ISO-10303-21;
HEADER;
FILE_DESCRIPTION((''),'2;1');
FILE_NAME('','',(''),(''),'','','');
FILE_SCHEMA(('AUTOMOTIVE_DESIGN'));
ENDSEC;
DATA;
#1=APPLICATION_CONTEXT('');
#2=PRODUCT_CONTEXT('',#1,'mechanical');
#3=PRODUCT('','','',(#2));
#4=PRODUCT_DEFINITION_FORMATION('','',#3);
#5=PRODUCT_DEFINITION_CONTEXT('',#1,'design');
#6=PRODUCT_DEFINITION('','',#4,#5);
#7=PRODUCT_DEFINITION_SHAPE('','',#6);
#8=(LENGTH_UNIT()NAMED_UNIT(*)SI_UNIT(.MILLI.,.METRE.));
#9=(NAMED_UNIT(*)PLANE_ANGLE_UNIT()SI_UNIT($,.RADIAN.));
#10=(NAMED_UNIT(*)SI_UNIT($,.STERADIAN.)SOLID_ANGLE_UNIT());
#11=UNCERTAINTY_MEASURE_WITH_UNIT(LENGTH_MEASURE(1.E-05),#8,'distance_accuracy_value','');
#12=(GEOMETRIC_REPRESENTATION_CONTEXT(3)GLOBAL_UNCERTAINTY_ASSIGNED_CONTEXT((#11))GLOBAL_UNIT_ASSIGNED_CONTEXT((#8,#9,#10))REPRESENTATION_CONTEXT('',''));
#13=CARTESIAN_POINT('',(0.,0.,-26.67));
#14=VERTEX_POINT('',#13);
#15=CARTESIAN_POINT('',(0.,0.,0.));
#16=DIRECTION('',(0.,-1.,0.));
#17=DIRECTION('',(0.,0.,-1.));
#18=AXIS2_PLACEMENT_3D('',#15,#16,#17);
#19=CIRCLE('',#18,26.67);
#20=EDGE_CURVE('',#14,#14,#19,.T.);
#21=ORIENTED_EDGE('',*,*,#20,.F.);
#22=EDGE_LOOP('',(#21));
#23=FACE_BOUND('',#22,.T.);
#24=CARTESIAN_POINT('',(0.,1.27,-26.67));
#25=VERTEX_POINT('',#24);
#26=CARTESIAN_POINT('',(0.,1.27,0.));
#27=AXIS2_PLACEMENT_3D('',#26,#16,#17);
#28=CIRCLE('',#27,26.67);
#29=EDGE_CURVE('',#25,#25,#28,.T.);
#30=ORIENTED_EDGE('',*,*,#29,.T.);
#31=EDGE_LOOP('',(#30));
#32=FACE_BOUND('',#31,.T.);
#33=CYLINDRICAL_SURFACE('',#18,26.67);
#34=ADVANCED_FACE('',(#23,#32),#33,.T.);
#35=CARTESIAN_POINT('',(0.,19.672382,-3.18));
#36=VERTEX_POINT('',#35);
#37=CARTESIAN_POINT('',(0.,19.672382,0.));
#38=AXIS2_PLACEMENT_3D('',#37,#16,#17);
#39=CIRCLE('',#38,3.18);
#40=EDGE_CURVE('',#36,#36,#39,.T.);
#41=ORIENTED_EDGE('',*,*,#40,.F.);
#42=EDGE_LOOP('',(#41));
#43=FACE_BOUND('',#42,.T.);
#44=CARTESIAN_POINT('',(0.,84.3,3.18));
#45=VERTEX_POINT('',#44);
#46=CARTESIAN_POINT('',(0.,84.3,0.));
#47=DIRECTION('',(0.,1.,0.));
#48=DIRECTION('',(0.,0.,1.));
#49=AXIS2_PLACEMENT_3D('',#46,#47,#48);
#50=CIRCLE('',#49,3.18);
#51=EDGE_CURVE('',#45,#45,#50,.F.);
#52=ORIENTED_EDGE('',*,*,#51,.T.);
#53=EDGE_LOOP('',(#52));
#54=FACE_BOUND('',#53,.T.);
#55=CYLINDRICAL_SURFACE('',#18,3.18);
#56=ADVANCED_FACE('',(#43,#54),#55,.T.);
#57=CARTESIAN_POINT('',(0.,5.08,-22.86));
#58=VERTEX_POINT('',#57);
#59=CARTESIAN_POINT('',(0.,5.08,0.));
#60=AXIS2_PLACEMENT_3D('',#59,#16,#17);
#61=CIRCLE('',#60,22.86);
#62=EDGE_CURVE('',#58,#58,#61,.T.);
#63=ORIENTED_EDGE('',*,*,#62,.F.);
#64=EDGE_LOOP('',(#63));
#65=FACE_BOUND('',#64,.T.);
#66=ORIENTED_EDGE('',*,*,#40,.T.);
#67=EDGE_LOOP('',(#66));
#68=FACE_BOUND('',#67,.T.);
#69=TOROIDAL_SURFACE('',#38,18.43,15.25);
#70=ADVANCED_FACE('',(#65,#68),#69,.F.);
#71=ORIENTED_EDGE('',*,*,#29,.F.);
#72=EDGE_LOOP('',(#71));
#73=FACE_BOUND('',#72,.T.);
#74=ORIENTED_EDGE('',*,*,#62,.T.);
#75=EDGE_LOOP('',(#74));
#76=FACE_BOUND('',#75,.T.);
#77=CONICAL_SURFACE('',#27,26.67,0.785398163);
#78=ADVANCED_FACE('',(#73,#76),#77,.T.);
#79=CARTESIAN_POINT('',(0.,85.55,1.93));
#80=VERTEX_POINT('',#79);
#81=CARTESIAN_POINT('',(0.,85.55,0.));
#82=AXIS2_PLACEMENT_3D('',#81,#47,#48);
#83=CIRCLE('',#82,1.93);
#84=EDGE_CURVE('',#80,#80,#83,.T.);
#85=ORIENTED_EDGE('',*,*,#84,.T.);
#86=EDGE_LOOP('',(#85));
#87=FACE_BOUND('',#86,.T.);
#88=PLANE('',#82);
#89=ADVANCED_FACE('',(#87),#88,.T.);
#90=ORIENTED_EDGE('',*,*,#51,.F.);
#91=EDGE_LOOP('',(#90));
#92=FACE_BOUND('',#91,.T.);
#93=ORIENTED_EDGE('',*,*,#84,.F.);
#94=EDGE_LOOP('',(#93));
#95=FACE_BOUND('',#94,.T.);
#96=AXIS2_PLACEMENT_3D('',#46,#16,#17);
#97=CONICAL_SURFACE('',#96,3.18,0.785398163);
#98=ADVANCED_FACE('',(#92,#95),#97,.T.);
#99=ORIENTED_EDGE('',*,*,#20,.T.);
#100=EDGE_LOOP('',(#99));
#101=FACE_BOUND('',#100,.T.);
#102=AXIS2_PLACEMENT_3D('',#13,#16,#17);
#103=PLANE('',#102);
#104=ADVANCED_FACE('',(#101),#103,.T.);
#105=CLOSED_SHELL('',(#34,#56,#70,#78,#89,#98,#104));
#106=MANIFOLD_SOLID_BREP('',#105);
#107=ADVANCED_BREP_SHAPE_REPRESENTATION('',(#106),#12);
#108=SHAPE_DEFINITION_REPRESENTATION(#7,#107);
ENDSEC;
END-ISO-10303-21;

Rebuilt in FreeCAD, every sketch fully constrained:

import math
import FreeCAD as App
import Part
import Sketcher
Q = App.Units.Quantity


def edges_at(feature, points):
    """Names of the edges that pass closest to the given points."""
    edges = feature.Shape.Edges
    near = lambda p: min(range(len(edges)), key=lambda i: edges[i].distToShape(Part.Vertex(*p))[0])
    return sorted({f"Edge{near(p) + 1}" for p in points})

doc = App.newDocument("Part")
body = doc.addObject("PartDesign::Body", "Body")

sketch1 = body.newObject("Sketcher::SketchObject", "Sketch")
sketch1.AttachmentSupport = (doc.getObject("YZ_Plane"), [""])
sketch1.MapMode = "FlatFace"
sketch1.addGeometry([
    Part.LineSegment(App.Vector(85.55, 0, 0), App.Vector(0, 0, 0)),
    Part.LineSegment(App.Vector(0, 0, 0), App.Vector(0, -26.67, 0)),
    Part.LineSegment(App.Vector(0, -26.67, 0), App.Vector(1.27, -26.67, 0)),
    Part.LineSegment(App.Vector(1.27, -26.67, 0), App.Vector(5.08, -22.86, 0)),
    Part.ArcOfCircle(Part.Circle(App.Vector(19.672382, -18.43, 0), App.Vector(0, 0, 1), 15.25), math.radians(90), math.radians(196.887402)),
    Part.LineSegment(App.Vector(19.672382, -3.18, 0), App.Vector(85.55, -3.18, 0)),
    Part.LineSegment(App.Vector(85.55, -3.18, 0), App.Vector(85.55, 0, 0)),
], False)
sketch1.addConstraint([
    Sketcher.Constraint("Coincident", 0, 2, 1, 1),
    Sketcher.Constraint("Coincident", 1, 2, 2, 1),
    Sketcher.Constraint("Coincident", 2, 2, 3, 1),
    Sketcher.Constraint("Coincident", 3, 2, 4, 2),
    Sketcher.Constraint("Tangent", 4, 1, 5, 1),
    Sketcher.Constraint("Coincident", 5, 2, 6, 1),
    Sketcher.Constraint("Coincident", 6, 2, 0, 1),
    Sketcher.Constraint("Horizontal", 0),
    Sketcher.Constraint("Vertical", 1),
    Sketcher.Constraint("Horizontal", 2),
    Sketcher.Constraint("Horizontal", 5),
    Sketcher.Constraint("Vertical", 6),
    Sketcher.Constraint("Coincident", 0, 2, -1, 1),
    Sketcher.Constraint("Angle", 3, Q("45 deg")),
    Sketcher.Constraint("DistanceX", 2, 1, 2, 2, Q("0.05 in")),
    Sketcher.Constraint("DistanceY", 1, 2, 1, 1, Q("1.05 in")),
    Sketcher.Constraint("DistanceX", -1, 1, 3, 2, Q("0.2 in")),
    Sketcher.Constraint("Radius", 4, Q("15.25 mm")),
    Sketcher.Constraint("DistanceX", 0, 2, 0, 1, Q("85.55 mm")),
    Sketcher.Constraint("DistanceY", 6, 1, 6, 2, Q("3.18 mm")),
])
revolution = body.newObject("PartDesign::Revolution", "Revolution")
revolution.Profile = sketch1
revolution.ReferenceAxis = (sketch1, ["H_Axis"])
revolution.Angle = 360
doc.recompute()

chamfer = body.newObject("PartDesign::Chamfer", "Chamfer")
chamfer.Base = (revolution, edges_at(revolution, [(0, 85.55, 3.18)]))
chamfer.Size = 1.25

doc.recompute()
